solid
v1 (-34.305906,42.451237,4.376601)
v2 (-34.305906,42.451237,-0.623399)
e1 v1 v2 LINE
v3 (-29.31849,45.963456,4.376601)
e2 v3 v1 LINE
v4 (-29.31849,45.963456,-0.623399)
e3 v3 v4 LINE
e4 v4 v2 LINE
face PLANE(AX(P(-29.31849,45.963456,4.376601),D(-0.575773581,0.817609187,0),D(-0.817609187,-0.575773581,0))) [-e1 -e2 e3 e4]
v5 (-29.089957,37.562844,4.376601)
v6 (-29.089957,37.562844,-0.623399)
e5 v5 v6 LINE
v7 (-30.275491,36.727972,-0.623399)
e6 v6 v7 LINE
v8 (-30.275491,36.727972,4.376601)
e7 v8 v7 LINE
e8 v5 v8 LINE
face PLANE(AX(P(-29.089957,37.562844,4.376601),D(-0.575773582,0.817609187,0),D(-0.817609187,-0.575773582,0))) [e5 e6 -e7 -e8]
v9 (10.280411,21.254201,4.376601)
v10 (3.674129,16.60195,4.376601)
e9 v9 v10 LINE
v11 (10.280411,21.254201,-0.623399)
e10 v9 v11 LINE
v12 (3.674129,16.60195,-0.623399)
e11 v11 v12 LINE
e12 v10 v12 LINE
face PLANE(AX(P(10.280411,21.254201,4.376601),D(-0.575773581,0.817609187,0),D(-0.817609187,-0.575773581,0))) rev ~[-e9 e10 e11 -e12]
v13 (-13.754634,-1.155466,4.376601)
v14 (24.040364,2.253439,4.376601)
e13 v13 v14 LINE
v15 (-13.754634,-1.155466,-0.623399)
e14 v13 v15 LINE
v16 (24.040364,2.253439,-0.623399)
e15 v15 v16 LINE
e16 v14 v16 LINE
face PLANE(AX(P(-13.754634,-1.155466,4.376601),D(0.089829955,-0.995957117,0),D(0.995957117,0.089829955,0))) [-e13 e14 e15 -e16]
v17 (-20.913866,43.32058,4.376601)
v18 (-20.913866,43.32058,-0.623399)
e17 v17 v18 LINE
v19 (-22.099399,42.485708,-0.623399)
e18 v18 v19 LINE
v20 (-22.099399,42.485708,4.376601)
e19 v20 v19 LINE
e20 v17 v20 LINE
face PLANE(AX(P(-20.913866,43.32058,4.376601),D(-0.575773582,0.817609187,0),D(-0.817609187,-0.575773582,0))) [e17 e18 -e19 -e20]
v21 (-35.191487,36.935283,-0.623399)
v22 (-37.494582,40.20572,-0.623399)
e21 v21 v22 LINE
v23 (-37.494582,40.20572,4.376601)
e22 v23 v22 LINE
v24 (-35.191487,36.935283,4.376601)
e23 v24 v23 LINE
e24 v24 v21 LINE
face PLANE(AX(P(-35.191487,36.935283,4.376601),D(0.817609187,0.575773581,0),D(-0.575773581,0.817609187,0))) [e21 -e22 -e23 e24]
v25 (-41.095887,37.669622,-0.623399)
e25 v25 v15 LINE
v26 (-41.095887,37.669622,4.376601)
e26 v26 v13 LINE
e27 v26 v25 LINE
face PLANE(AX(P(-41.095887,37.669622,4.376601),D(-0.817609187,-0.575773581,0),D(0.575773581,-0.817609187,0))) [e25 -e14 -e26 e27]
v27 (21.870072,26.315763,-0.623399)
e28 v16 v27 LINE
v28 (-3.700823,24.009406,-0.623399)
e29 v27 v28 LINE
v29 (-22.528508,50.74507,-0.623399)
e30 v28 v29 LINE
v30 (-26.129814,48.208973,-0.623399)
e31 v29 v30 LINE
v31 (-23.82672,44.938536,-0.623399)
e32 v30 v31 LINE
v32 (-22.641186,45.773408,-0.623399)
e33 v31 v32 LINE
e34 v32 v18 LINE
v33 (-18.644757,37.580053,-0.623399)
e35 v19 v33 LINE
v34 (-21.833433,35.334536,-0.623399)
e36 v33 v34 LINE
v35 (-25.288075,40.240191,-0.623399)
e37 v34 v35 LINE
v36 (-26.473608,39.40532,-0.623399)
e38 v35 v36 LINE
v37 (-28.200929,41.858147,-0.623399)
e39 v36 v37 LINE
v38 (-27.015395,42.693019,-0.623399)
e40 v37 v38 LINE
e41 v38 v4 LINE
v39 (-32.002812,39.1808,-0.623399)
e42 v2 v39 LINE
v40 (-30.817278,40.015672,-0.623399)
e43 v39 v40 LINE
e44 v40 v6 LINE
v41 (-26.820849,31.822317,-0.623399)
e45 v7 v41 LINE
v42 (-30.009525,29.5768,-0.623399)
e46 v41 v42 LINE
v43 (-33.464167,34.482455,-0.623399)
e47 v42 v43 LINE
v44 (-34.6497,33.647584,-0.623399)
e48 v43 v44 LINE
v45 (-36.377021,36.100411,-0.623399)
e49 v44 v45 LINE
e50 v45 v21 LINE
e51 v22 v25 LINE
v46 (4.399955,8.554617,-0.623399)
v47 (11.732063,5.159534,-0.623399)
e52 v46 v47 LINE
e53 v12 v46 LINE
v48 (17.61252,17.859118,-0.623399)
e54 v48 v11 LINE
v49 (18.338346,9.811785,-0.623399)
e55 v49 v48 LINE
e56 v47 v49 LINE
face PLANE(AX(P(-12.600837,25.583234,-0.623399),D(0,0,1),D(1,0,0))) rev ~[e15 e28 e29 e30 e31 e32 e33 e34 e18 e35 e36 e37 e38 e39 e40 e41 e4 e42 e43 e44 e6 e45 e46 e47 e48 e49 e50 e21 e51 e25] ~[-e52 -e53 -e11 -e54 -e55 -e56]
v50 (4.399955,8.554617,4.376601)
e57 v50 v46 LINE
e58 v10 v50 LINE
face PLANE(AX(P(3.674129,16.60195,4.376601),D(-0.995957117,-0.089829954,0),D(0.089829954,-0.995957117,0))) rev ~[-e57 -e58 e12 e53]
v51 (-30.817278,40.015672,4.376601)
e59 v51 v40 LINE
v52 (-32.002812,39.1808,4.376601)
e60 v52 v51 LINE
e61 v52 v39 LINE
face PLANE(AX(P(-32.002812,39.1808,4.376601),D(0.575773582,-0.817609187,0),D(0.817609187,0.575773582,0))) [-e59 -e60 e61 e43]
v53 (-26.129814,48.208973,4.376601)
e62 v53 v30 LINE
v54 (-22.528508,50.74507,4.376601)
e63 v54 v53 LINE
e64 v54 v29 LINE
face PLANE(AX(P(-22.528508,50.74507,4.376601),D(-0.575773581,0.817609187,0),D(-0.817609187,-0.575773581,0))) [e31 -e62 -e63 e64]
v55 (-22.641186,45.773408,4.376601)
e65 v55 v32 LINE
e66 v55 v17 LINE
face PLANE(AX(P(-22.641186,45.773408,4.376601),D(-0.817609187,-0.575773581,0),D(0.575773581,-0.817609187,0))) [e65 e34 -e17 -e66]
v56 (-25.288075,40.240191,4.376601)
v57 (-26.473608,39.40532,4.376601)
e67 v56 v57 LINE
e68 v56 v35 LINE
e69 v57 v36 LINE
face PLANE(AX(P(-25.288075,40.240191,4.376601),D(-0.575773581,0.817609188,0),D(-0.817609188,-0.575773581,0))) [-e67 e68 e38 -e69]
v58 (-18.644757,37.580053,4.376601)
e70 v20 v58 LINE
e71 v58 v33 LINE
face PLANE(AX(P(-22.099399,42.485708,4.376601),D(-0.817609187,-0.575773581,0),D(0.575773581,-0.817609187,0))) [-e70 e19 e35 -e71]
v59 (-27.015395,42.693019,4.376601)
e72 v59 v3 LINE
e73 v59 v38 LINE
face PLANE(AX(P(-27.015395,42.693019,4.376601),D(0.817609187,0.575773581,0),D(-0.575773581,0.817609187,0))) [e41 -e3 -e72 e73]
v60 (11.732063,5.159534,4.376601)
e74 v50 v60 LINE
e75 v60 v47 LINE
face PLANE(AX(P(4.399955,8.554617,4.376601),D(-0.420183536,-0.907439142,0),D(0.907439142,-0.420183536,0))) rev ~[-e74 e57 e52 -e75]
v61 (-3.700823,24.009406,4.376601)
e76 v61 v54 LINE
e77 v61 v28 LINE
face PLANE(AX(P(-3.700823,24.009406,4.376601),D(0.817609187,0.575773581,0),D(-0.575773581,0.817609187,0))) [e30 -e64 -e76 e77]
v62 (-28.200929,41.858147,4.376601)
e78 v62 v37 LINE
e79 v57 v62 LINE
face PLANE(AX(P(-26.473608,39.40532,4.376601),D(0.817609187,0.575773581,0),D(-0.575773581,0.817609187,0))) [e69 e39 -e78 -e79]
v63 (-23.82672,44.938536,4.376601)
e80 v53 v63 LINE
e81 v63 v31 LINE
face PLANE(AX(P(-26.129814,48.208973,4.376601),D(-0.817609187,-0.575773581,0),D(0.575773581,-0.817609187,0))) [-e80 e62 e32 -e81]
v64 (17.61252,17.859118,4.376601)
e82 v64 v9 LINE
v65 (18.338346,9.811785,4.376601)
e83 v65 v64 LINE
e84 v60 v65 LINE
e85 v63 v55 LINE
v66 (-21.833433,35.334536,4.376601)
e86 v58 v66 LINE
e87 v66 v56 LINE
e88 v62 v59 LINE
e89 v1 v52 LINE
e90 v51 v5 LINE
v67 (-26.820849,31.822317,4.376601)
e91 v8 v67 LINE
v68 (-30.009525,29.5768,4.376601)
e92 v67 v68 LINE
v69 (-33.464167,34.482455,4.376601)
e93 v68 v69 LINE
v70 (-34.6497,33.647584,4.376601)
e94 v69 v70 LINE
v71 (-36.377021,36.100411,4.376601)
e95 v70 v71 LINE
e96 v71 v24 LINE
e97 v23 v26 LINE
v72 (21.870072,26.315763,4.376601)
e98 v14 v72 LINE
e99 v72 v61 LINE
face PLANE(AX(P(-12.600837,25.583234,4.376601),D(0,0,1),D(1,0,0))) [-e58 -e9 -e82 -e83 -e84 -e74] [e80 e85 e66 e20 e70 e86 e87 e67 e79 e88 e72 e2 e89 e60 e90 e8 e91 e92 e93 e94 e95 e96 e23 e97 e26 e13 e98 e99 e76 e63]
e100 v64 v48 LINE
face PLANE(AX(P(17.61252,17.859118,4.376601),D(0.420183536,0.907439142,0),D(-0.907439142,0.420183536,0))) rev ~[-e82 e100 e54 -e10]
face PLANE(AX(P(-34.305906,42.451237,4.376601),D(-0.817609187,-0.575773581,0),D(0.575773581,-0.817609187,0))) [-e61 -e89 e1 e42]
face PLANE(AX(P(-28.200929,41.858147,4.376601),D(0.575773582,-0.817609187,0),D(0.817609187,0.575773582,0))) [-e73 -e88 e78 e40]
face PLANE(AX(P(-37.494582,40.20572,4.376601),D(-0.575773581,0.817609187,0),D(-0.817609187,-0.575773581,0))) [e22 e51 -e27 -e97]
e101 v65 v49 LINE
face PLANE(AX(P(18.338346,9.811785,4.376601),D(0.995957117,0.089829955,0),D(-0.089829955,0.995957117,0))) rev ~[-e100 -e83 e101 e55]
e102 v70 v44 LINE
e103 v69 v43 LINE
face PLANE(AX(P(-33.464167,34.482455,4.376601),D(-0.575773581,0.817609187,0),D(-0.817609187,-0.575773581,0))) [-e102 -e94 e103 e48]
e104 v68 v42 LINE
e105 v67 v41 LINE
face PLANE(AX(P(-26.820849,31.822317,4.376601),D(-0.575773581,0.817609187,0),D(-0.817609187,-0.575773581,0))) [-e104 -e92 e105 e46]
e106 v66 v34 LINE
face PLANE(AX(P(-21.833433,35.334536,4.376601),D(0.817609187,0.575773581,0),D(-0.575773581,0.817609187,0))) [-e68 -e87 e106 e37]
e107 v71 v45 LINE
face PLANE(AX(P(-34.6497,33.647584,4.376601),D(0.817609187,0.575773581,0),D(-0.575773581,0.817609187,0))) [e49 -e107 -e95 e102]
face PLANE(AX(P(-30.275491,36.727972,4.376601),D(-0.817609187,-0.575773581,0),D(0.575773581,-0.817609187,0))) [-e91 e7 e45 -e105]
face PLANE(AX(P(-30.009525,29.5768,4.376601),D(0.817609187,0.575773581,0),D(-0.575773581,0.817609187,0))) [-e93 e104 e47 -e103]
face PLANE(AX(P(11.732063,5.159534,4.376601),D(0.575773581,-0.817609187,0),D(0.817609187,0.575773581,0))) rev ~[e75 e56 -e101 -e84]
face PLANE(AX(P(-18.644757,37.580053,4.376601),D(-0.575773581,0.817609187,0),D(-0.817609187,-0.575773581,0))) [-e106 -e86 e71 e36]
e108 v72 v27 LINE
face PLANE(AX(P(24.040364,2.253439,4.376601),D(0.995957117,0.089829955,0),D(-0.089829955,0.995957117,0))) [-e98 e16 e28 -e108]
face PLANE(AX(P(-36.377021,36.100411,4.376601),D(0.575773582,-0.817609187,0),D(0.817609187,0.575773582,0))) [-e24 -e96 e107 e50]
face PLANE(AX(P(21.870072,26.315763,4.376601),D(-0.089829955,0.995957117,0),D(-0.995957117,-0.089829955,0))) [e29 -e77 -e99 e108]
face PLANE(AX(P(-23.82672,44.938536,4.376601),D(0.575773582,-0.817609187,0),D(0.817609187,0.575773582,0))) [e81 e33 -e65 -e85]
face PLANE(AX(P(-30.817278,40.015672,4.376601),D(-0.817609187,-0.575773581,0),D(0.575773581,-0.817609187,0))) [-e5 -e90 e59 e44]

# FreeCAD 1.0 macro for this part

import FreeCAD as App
import Part
import Sketcher

V = App.Vector
Q = App.Units.Quantity

doc = App.newDocument("Part")
body = doc.addObject("PartDesign::Body", "Body")

sketch1 = body.newObject("Sketcher::SketchObject", "Sketch")
sketch1.AttachmentSupport = (doc.getObject("XY_Plane"), [""])
sketch1.MapMode = "FlatFace"
sketch1.AttachmentOffset = App.Placement(V(0, 0, 4.376601), App.Rotation())
sketch1.addGeometry([
    Part.LineSegment(V(-41.1, 37.7, 0), V(-13.8, -1.2, 0)),
    Part.LineSegment(V(-13.8, -1.2, 0), V(24, 2.3, 0)),
    Part.LineSegment(V(24, 2.3, 0), V(21.9, 26.3, 0)),
    Part.LineSegment(V(21.9, 26.3, 0), V(-3.7, 24, 0)),
    Part.LineSegment(V(-3.7, 24, 0), V(-22.5, 50.7, 0)),
    Part.LineSegment(V(-22.5, 50.7, 0), V(-26.1, 48.2, 0)),
    Part.LineSegment(V(-26.1, 48.2, 0), V(-23.8, 44.9, 0)),
    Part.LineSegment(V(-23.8, 44.9, 0), V(-22.6, 45.8, 0)),
    Part.LineSegment(V(-22.6, 45.8, 0), V(-20.9, 43.3, 0)),
    Part.LineSegment(V(-20.9, 43.3, 0), V(-22.1, 42.5, 0)),
    Part.LineSegment(V(-22.1, 42.5, 0), V(-18.6, 37.6, 0)),
    Part.LineSegment(V(-18.6, 37.6, 0), V(-21.8, 35.3, 0)),
    Part.LineSegment(V(-21.8, 35.3, 0), V(-25.3, 40.2, 0)),
    Part.LineSegment(V(-25.3, 40.2, 0), V(-26.5, 39.4, 0)),
    Part.LineSegment(V(-26.5, 39.4, 0), V(-28.2, 41.9, 0)),
    Part.LineSegment(V(-28.2, 41.9, 0), V(-27, 42.7, 0)),
    Part.LineSegment(V(-27, 42.7, 0), V(-29.3, 46, 0)),
    Part.LineSegment(V(-29.3, 46, 0), V(-34.3, 42.5, 0)),
    Part.LineSegment(V(-34.3, 42.5, 0), V(-32, 39.2, 0)),
    Part.LineSegment(V(-32, 39.2, 0), V(-30.8, 40, 0)),
    Part.LineSegment(V(-30.8, 40, 0), V(-29.1, 37.6, 0)),
    Part.LineSegment(V(-29.1, 37.6, 0), V(-30.3, 36.7, 0)),
    Part.LineSegment(V(-30.3, 36.7, 0), V(-26.8, 31.8, 0)),
    Part.LineSegment(V(-26.8, 31.8, 0), V(-30, 29.6, 0)),
    Part.LineSegment(V(-30, 29.6, 0), V(-33.5, 34.5, 0)),
    Part.LineSegment(V(-33.5, 34.5, 0), V(-34.6, 33.6, 0)),
    Part.LineSegment(V(-34.6, 33.6, 0), V(-36.4, 36.1, 0)),
    Part.LineSegment(V(-36.4, 36.1, 0), V(-35.2, 36.9, 0)),
    Part.LineSegment(V(-35.2, 36.9, 0), V(-37.5, 40.2, 0)),
    Part.LineSegment(V(-37.5, 40.2, 0), V(-41.1, 37.7, 0)),
    Part.LineSegment(V(4.4, 8.6, 0), V(3.7, 16.6, 0)),
    Part.LineSegment(V(3.7, 16.6, 0), V(10.3, 21.3, 0)),
    Part.LineSegment(V(10.3, 21.3, 0), V(17.6, 17.9, 0)),
    Part.LineSegment(V(17.6, 17.9, 0), V(18.3, 9.8, 0)),
    Part.LineSegment(V(18.3, 9.8, 0), V(11.7, 5.2, 0)),
    Part.LineSegment(V(11.7, 5.2, 0), V(4.4, 8.6, 0)),
], False)
sketch1.addConstraint([
    Sketcher.Constraint("Coincident", 0, 2, 1, 1),
    Sketcher.Constraint("Coincident", 1, 2, 2, 1),
    Sketcher.Constraint("Coincident", 2, 2, 3, 1),
    Sketcher.Constraint("Coincident", 3, 2, 4, 1),
    Sketcher.Constraint("Coincident", 4, 2, 5, 1),
    Sketcher.Constraint("Coincident", 5, 2, 6, 1),
    Sketcher.Constraint("Coincident", 6, 2, 7, 1),
    Sketcher.Constraint("Coincident", 7, 2, 8, 1),
    Sketcher.Constraint("Coincident", 8, 2, 9, 1),
    Sketcher.Constraint("Coincident", 9, 2, 10, 1),
    Sketcher.Constraint("Coincident", 10, 2, 11, 1),
    Sketcher.Constraint("Coincident", 11, 2, 12, 1),
    Sketcher.Constraint("Coincident", 12, 2, 13, 1),
    Sketcher.Constraint("Coincident", 13, 2, 14, 1),
    Sketcher.Constraint("Coincident", 14, 2, 15, 1),
    Sketcher.Constraint("Coincident", 15, 2, 16, 1),
    Sketcher.Constraint("Coincident", 16, 2, 17, 1),
    Sketcher.Constraint("Coincident", 17, 2, 18, 1),
    Sketcher.Constraint("Coincident", 18, 2, 19, 1),
    Sketcher.Constraint("Coincident", 19, 2, 20, 1),
    Sketcher.Constraint("Coincident", 20, 2, 21, 1),
    Sketcher.Constraint("Coincident", 21, 2, 22, 1),
    Sketcher.Constraint("Coincident", 22, 2, 23, 1),
    Sketcher.Constraint("Coincident", 23, 2, 24, 1),
    Sketcher.Constraint("Coincident", 24, 2, 25, 1),
    Sketcher.Constraint("Coincident", 25, 2, 26, 1),
    Sketcher.Constraint("Coincident", 26, 2, 27, 1),
    Sketcher.Constraint("Coincident", 27, 2, 28, 1),
    Sketcher.Constraint("Coincident", 28, 2, 29, 1),
    Sketcher.Constraint("Coincident", 29, 2, 0, 1),
    Sketcher.Constraint("Coincident", 30, 2, 31, 1),
    Sketcher.Constraint("Coincident", 31, 2, 32, 1),
    Sketcher.Constraint("Coincident", 32, 2, 33, 1),
    Sketcher.Constraint("Coincident", 33, 2, 34, 1),
    Sketcher.Constraint("Coincident", 34, 2, 35, 1),
    Sketcher.Constraint("Coincident", 35, 2, 30, 1),
    Sketcher.Constraint("Perpendicular", 1, 2),
    Sketcher.Constraint("Perpendicular", 2, 3),
    Sketcher.Constraint("Parallel", 0, 4),
    Sketcher.Constraint("Perpendicular", 4, 5),
    Sketcher.Constraint("Perpendicular", 5, 6),
    Sketcher.Constraint("Perpendicular", 6, 7),
    Sketcher.Constraint("Perpendicular", 7, 8),
    Sketcher.Constraint("Perpendicular", 8, 9),
    Sketcher.Constraint("Perpendicular", 9, 10),
    Sketcher.Constraint("Perpendicular", 10, 11),
    Sketcher.Constraint("Perpendicular", 11, 12),
    Sketcher.Constraint("Perpendicular", 12, 13),
    Sketcher.Constraint("Perpendicular", 13, 14),
    Sketcher.Constraint("Perpendicular", 14, 15),
    Sketcher.Constraint("Perpendicular", 15, 16),
    Sketcher.Constraint("Perpendicular", 16, 17),
    Sketcher.Constraint("Perpendicular", 17, 18),
    Sketcher.Constraint("Perpendicular", 18, 19),
    Sketcher.Constraint("Perpendicular", 19, 20),
    Sketcher.Constraint("Perpendicular", 20, 21),
    Sketcher.Constraint("Perpendicular", 21, 22),
    Sketcher.Constraint("Perpendicular", 22, 23),
    Sketcher.Constraint("Perpendicular", 23, 24),
    Sketcher.Constraint("Perpendicular", 24, 25),
    Sketcher.Constraint("Perpendicular", 25, 26),
    Sketcher.Constraint("Perpendicular", 26, 27),
    Sketcher.Constraint("Perpendicular", 27, 28),
    Sketcher.Constraint("Perpendicular", 28, 29),
    Sketcher.Constraint("Perpendicular", 3, 30),
    Sketcher.Constraint("Parallel", 29, 31),
    Sketcher.Constraint("Parallel", 30, 33),
    Sketcher.Constraint("Parallel", 31, 34),
    Sketcher.Constraint("Parallel", 32, 35),
    Sketcher.Constraint("Equal", 7, 9),
    Sketcher.Constraint("Equal", 10, 12),
    Sketcher.Constraint("Equal", 9, 13),
    Sketcher.Constraint("Equal", 8, 14),
    Sketcher.Constraint("Equal", 13, 15),
    Sketcher.Constraint("Equal", 6, 16),
    Sketcher.Constraint("Equal", 16, 18),
    Sketcher.Constraint("Equal", 15, 19),
    Sketcher.Constraint("Equal", 14, 20),
    Sketcher.Constraint("Equal", 19, 21),
    Sketcher.Constraint("Equal", 12, 22),
    Sketcher.Constraint("Equal", 11, 23),
    Sketcher.Constraint("Equal", 22, 24),
    Sketcher.Constraint("Equal", 21, 25),
    Sketcher.Constraint("Equal", 20, 26),
    Sketcher.Constraint("Equal", 25, 27),
    Sketcher.Constraint("Equal", 18, 28),
    Sketcher.Constraint("Equal", 5, 29),
    Sketcher.Constraint("Equal", 30, 31),
    Sketcher.Constraint("Equal", 31, 32),
    Sketcher.Constraint("Equal", 32, 33),
    Sketcher.Constraint("Distance", 6, Q("4 mm")),
    Sketcher.Constraint("Distance", 8, Q("3 mm")),
    Sketcher.Constraint("Distance", 10, Q("6 mm")),
    Sketcher.Constraint("Distance", 11, Q("3.9 mm")),
    Sketcher.Constraint("Distance", 17, Q("6.1 mm")),
    Sketcher.Constraint("Distance", 2, Q("24.16 mm")),
    Sketcher.Constraint("Distance", 7, Q("1.45 mm")),
    Sketcher.Constraint("Distance", 30, Q("8.08 mm")),
    Sketcher.Constraint("DistanceY", 0, 2, 6, 2, Q("46.094001 mm")),
    Sketcher.Constraint("DistanceY", 3, 2, 7, 2, Q("21.764001 mm")),
    Sketcher.Constraint("DistanceY", 11, 2, 6, 2, Q("9.604 mm")),
    Sketcher.Constraint("DistanceX", 9, 2, -1, 1, Q("22.099399 mm")),
    Sketcher.Constraint("DistanceY", -1, 1, 18, 2, Q("39.1808 mm")),
    Sketcher.Constraint("DistanceY", -1, 1, 31, 2, Q("21.254201 mm")),
    Sketcher.Constraint("DistanceX", 29, 2, 27, 2, Q("5.9044 mm")),
    Sketcher.Constraint("DistanceX", 34, 2, 1, 2, Q("12.308301 mm")),
    Sketcher.Constraint("DistanceY", 35, 2, 32, 2, Q("9.304501 mm")),
    Sketcher.Constraint("Distance", 1, Q("37.948419 mm")),
])
pad1 = body.newObject("PartDesign::Pad", "Pad")
pad1.Profile = sketch1
pad1.Length = 5
pad1.Reversed = True

doc.recompute()
